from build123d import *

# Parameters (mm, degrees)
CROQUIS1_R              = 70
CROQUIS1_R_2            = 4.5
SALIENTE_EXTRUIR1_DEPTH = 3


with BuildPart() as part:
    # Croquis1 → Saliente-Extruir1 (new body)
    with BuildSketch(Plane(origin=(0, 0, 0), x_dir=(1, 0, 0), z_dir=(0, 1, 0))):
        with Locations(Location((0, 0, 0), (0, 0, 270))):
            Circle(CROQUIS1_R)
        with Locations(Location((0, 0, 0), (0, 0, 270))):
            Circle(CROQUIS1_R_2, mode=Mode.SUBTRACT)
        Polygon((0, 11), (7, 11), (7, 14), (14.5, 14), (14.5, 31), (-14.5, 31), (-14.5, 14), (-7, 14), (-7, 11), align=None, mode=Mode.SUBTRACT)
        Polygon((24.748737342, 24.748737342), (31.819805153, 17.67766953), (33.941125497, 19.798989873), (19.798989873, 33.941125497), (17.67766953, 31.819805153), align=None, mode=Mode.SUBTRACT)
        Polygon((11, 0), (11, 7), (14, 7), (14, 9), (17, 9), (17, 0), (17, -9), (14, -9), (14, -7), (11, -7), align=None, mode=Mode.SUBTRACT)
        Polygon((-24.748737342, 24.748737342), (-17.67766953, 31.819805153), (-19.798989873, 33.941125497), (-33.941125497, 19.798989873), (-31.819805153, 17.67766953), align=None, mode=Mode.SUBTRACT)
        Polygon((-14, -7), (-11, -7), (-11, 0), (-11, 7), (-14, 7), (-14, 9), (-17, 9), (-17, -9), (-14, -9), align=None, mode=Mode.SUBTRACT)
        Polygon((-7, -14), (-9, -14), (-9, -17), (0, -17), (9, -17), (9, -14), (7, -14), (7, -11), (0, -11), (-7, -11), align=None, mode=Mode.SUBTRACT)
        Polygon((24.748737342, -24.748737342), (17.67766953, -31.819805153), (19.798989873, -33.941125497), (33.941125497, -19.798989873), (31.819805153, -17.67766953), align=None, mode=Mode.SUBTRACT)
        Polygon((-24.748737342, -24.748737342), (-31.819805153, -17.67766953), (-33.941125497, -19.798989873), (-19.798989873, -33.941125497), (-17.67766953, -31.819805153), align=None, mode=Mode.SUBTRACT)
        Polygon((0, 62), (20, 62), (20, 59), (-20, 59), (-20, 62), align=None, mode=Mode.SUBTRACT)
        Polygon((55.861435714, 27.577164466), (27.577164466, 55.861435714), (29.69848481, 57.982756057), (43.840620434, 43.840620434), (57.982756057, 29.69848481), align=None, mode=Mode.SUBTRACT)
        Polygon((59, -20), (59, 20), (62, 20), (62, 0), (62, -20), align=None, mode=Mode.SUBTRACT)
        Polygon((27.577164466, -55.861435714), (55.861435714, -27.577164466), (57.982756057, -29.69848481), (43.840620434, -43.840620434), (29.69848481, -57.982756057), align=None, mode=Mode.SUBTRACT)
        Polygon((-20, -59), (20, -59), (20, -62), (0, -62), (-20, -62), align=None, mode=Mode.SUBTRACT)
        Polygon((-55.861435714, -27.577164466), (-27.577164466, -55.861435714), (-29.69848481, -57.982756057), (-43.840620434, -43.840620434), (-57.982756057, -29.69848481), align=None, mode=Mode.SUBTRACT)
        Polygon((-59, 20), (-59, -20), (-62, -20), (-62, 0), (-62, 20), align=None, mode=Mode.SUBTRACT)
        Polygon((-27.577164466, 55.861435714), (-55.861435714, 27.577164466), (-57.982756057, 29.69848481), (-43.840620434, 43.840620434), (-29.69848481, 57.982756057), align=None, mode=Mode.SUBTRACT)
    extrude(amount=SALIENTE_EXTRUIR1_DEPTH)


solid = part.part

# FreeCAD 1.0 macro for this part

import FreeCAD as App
import Part
import Sketcher
Q = App.Units.Quantity


def add_polygon(sketch, points):
    """Adds a closed chain of lines whose ends are joined by coincident constraints."""
    first, n = sketch.GeometryCount, len(points)
    for a, b in zip(points, points[1:] + points[:1]):
        sketch.addGeometry(Part.LineSegment(App.Vector(*a, 0), App.Vector(*b, 0)), False)
    for i in range(n):
        sketch.addConstraint(Sketcher.Constraint("Coincident", first + i, 2, first + (i + 1) % n, 1))

doc = App.newDocument("Part")
body = doc.addObject("PartDesign::Body", "Body")

# Sketch on XZ plane
sketch1 = body.newObject("Sketcher::SketchObject", "Sketch")
sketch1.AttachmentSupport = (doc.getObject("XZ_Plane"), [""])
sketch1.MapMode = "FlatFace"
sketch1.addGeometry(Part.Circle(App.Vector(0, 0, 0), App.Vector(0, 0, 1), 70), False)  # 0
add_polygon(sketch1, [(-29.7, -58), (-27.6, -55.9), (-55.9, -27.6), (-58, -29.7), (-43.8, -43.8)])  # lines 1-5
add_polygon(sketch1, [(-17.7, -31.8), (-24.7, -24.7), (-31.8, -17.7), (-33.9, -19.8), (-19.8, -33.9)])  # lines 6-10
add_polygon(sketch1, [(-62, -20), (-59, -20), (-59, 20), (-62, 20)])  # lines 11-14
add_polygon(sketch1, [(-58, 29.7), (-55.9, 27.6), (-27.6, 55.9), (-29.7, 58), (-43.8, 43.8)])  # lines 15-19
add_polygon(sketch1, [(-31.8, 17.7), (-24.7, 24.7), (-17.7, 31.8), (-19.8, 33.9), (-33.9, 19.8)])  # lines 20-24
add_polygon(sketch1, [(-11, 7), (-14, 7), (-14, 9), (-17, 9), (-17, -9), (-14, -9), (-14, -7), (-11, -7)])  # lines 25-32
add_polygon(sketch1, [(-20, -62), (20, -62), (20, -59), (-20, -59)])  # lines 33-36
add_polygon(sketch1, [(7, -11), (-7, -11), (-7, -14), (-14.5, -14), (-14.5, -31), (14.5, -31), (14.5, -14), (7, -14)])  # lines 37-44
add_polygon(sketch1, [(31.8, -17.7), (24.7, -24.7), (17.7, -31.8), (19.8, -33.9), (33.9, -19.8)])  # lines 45-49
add_polygon(sketch1, [(58, -29.7), (55.9, -27.6), (27.6, -55.9), (29.7, -58), (43.8, -43.8)])  # lines 50-54
sketch1.addGeometry(Part.Circle(App.Vector(0, 0, 0), App.Vector(0, 0, 1), 4.5), False)  # 55
add_polygon(sketch1, [(-9, 14), (-7, 14), (-7, 11), (7, 11), (7, 14), (9, 14), (9, 17), (-9, 17)])  # lines 56-63
add_polygon(sketch1, [(11, 7), (11, -7), (14, -7), (14, -9), (17, -9), (17, 9), (14, 9), (14, 7)])  # lines 64-71
add_polygon(sketch1, [(17.7, 31.8), (24.7, 24.7), (31.8, 17.7), (33.9, 19.8), (19.8, 33.9)])  # lines 72-76
add_polygon(sketch1, [(-20, 62), (-20, 59), (20, 59), (20, 62)])  # lines 77-80
add_polygon(sketch1, [(62, 20), (59, 20), (59, -20), (62, -20)])  # lines 81-84
add_polygon(sketch1, [(29.7, 58), (27.6, 55.9), (55.9, 27.6), (58, 29.7), (43.8, 43.8)])  # lines 85-89
sketch1.addConstraint([
    Sketcher.Constraint("Horizontal", 11),
    Sketcher.Constraint("Vertical", 12),
    Sketcher.Constraint("Horizontal", 13),
    Sketcher.Constraint("Vertical", 14),
    Sketcher.Constraint("Horizontal", 25),
    Sketcher.Constraint("Vertical", 26),
    Sketcher.Constraint("Horizontal", 27),
    Sketcher.Constraint("Vertical", 28),
    Sketcher.Constraint("Horizontal", 29),
    Sketcher.Constraint("Vertical", 30),
    Sketcher.Constraint("Horizontal", 31),
    Sketcher.Constraint("Vertical", 32),
    Sketcher.Constraint("Horizontal", 33),
    Sketcher.Constraint("Vertical", 34),
    Sketcher.Constraint("Horizontal", 35),
    Sketcher.Constraint("Vertical", 36),
    Sketcher.Constraint("Horizontal", 37),
    Sketcher.Constraint("Vertical", 38),
    Sketcher.Constraint("Horizontal", 39),
    Sketcher.Constraint("Vertical", 40),
    Sketcher.Constraint("Horizontal", 41),
    Sketcher.Constraint("Vertical", 42),
    Sketcher.Constraint("Horizontal", 43),
    Sketcher.Constraint("Vertical", 44),
    Sketcher.Constraint("Horizontal", 56),
    Sketcher.Constraint("Vertical", 57),
    Sketcher.Constraint("Horizontal", 58),
    Sketcher.Constraint("Vertical", 59),
    Sketcher.Constraint("Horizontal", 60),
    Sketcher.Constraint("Vertical", 61),
    Sketcher.Constraint("Horizontal", 62),
    Sketcher.Constraint("Vertical", 63),
    Sketcher.Constraint("Vertical", 64),
    Sketcher.Constraint("Horizontal", 65),
    Sketcher.Constraint("Vertical", 66),
    Sketcher.Constraint("Horizontal", 67),
    Sketcher.Constraint("Vertical", 68),
    Sketcher.Constraint("Horizontal", 69),
    Sketcher.Constraint("Vertical", 70),
    Sketcher.Constraint("Horizontal", 71),
    Sketcher.Constraint("Vertical", 77),
    Sketcher.Constraint("Horizontal", 78),
    Sketcher.Constraint("Vertical", 79),
    Sketcher.Constraint("Horizontal", 80),
    Sketcher.Constraint("Horizontal", 81),
    Sketcher.Constraint("Vertical", 82),
    Sketcher.Constraint("Horizontal", 83),
    Sketcher.Constraint("Vertical", 84),
    Sketcher.Constraint("Coincident", 0, 3, -1, 1),
    Sketcher.Constraint("Coincident", 55, 3, -1, 1),
    Sketcher.Constraint("Symmetric", 20, 2, 45, 2, -1, 1),
    Sketcher.Constraint("Symmetric", 21, 2, 46, 2, -1, 1),
    Sketcher.Constraint("Symmetric", 22, 2, 47, 2, -1, 1),
    Sketcher.Constraint("Symmetric", 23, 2, 48, 2, -1, 1),
    Sketcher.Constraint("Symmetric", 24, 2, 49, 2, -1, 1),
    Sketcher.Constraint("Symmetric", 15, 2, 50, 2, -1, 1),
    Sketcher.Constraint("Symmetric", 16, 2, 51, 2, -1, 1),
    Sketcher.Constraint("Symmetric", 17, 2, 52, 2, -1, 1),
    Sketcher.Constraint("Symmetric", 18, 2, 53, 2, -1, 1),
    Sketcher.Constraint("Symmetric", 19, 2, 54, 2, -1, 1),
    Sketcher.Constraint("Symmetric", 43, 2, 56, 2, -1, 1),
    Sketcher.Constraint("Symmetric", 37, 2, 58, 2, -1, 1),
    Sketcher.Constraint("Symmetric", 32, 2, 64, 2, -1, 1),
    Sketcher.Constraint("Symmetric", 26, 2, 66, 2, -1, 1),
    Sketcher.Constraint("Symmetric", 28, 2, 68, 2, -1, 1),
    Sketcher.Constraint("Symmetric", 30, 2, 70, 2, -1, 1),
    Sketcher.Constraint("Symmetric", 6, 2, 72, 2, -1, 1),
    Sketcher.Constraint("Symmetric", 7, 2, 73, 2, -1, 1),
    Sketcher.Constraint("Symmetric", 8, 2, 74, 2, -1, 1),
    Sketcher.Constraint("Symmetric", 9, 2, 75, 2, -1, 1),
    Sketcher.Constraint("Symmetric", 10, 2, 76, 2, -1, 1),
    Sketcher.Constraint("Symmetric", 34, 2, 77, 2, -1, 1),
    Sketcher.Constraint("Symmetric", 36, 2, 79, 2, -1, 1),
    Sketcher.Constraint("Symmetric", 11, 2, 81, 2, -1, 1),
    Sketcher.Constraint("Symmetric", 13, 2, 83, 2, -1, 1),
    Sketcher.Constraint("Symmetric", 1, 2, 85, 2, -1, 1),
    Sketcher.Constraint("Symmetric", 2, 2, 86, 2, -1, 1),
    Sketcher.Constraint("Symmetric", 3, 2, 87, 2, -1, 1),
    Sketcher.Constraint("Symmetric", 4, 2, 88, 2, -1, 1),
    Sketcher.Constraint("Symmetric", 5, 2, 89, 2, -1, 1),
    Sketcher.Constraint("Symmetric", 39, 2, 42, 2, -2),
    Sketcher.Constraint("Symmetric", 6, 2, 45, 2, -2),
    Sketcher.Constraint("Symmetric", 10, 2, 46, 2, -2),
    Sketcher.Constraint("Symmetric", 9, 2, 47, 2, -2),
    Sketcher.Constraint("Symmetric", 8, 2, 48, 2, -2),
    Sketcher.Constraint("Symmetric", 7, 2, 49, 2, -2),
    Sketcher.Constraint("Symmetric", 2, 2, 50, 2, -2),
    Sketcher.Constraint("Symmetric", 1, 2, 51, 2, -2),
    Sketcher.Constraint("Symmetric", 5, 2, 52, 2, -2),
    Sketcher.Constraint("Symmetric", 4, 2, 53, 2, -2),
    Sketcher.Constraint("Symmetric", 3, 2, 54, 2, -2),
    Sketcher.Constraint("Symmetric", 56, 2, 59, 2, -2),
    Sketcher.Constraint("Symmetric", 30, 2, 65, 2, -2),
    Sketcher.Constraint("Perpendicular", 1, 2),
    Sketcher.Constraint("Perpendicular", 2, 3),
    Sketcher.Constraint("Perpendicular", 3, 4),
    Sketcher.Constraint("Parallel", 4, 5),
    Sketcher.Constraint("Parallel", 5, 6),
    Sketcher.Constraint("Parallel", 6, 7),
    Sketcher.Constraint("Perpendicular", 7, 8),
    Sketcher.Constraint("Perpendicular", 8, 9),
    Sketcher.Constraint("Perpendicular", 9, 10),
    Sketcher.Constraint("Perpendicular", 10, 15),
    Sketcher.Constraint("Horizontal", 29, 2, 66, 2),
    Sketcher.Constraint("Horizontal", 13, 2, 81, 2),
    Sketcher.Constraint("Vertical", 36, 2, 77, 2),
    Sketcher.Constraint("Equal", 13, 25),
    Sketcher.Constraint("Equal", 25, 27),
    Sketcher.Constraint("Equal", 56, 60),
    Sketcher.Constraint("Equal", 80, 12),
    Sketcher.Constraint("Equal", 60, 26),
    Sketcher.Constraint("Equal", 62, 28),
    Sketcher.Constraint("Equal", 83, 34),
    Sketcher.Constraint("Equal", 36, 38),
    Sketcher.Constraint("Equal", 59, 61),
    Sketcher.Constraint("Equal", 4, 5),
    Sketcher.Constraint("Equal", 6, 7),
    Sketcher.Constraint("Equal", 3, 8),
    Sketcher.Constraint("Equal", 5, 9),
    Sketcher.Constraint("Diameter", 0, Q("140 mm")),
    Sketcher.Constraint("Diameter", 55, Q("9 mm")),
    Sketcher.Constraint("DistanceX", 11, 1, 11, 2, Q("3 mm")),
    Sketcher.Constraint("DistanceX", 33, 1, 33, 2, Q("40 mm")),
    Sketcher.Constraint("DistanceX", 37, 2, 37, 1, Q("14 mm")),
    Sketcher.Constraint("DistanceX", 41, 1, 41, 2, Q("29 mm")),
    Sketcher.Constraint("DistanceX", 56, 1, 56, 2, Q("2 mm")),
    Sketcher.Constraint("DistanceY", 40, 2, 40, 1, Q("17 mm")),
    Sketcher.Constraint("Distance", 1, Q("3 mm")),
    Sketcher.Constraint("Distance", 2, Q("40 mm")),
    Sketcher.Constraint("DistanceX", 11, 2, -1, 1, Q("59 mm")),
    Sketcher.Constraint("DistanceX", 25, 2, -1, 1, Q("14 mm")),
    Sketcher.Constraint("DistanceY", 33, 2, -1, 1, Q("62 mm")),
    Sketcher.Constraint("DistanceY", 37, 2, -1, 1, Q("11 mm")),
    Sketcher.Constraint("DistanceX", 4, 2, -1, 1, Q("43.84062 mm")),
    Sketcher.Constraint("DistanceY", 4, 2, -1, 1, Q("43.84062 mm")),
    Sketcher.Constraint("DistanceY", 7, 2, -1, 1, Q("17.67767 mm")),
    Sketcher.Constraint("DistanceX", 9, 2, -1, 1, Q("19.79899 mm")),
])
pad1 = body.newObject("PartDesign::Pad", "Pad")
pad1.Profile = sketch1
pad1.Length = 3
pad1.Reversed = True

doc.recompute()
